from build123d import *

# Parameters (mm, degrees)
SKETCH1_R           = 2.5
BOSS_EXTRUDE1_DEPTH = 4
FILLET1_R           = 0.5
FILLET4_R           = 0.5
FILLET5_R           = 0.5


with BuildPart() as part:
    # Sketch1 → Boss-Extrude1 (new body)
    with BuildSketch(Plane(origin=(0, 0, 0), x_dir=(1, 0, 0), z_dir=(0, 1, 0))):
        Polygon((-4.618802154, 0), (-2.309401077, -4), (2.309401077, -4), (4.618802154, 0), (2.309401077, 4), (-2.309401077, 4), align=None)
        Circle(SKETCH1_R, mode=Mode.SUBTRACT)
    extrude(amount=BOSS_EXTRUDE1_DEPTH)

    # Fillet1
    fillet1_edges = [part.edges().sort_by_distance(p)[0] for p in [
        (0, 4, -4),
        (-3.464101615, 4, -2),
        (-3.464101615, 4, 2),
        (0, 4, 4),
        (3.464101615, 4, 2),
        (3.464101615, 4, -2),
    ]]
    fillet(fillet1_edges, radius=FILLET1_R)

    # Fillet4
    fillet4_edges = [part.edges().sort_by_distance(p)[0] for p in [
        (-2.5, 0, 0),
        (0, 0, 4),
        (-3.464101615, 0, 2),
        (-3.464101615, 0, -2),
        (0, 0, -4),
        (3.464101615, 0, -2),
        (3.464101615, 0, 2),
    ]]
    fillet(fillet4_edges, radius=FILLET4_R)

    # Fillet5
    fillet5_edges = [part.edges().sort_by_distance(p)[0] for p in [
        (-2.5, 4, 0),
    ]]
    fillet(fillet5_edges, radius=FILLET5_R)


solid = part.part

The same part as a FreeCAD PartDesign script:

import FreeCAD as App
import Part
import Sketcher

V = App.Vector
Q = App.Units.Quantity


def edges_at(feature, points):
    """Names of the edges that pass closest to the given points."""
    edges = feature.Shape.Edges
    near = lambda p: min(range(len(edges)), key=lambda i: edges[i].distToShape(Part.Vertex(*p))[0])
    return sorted({f"Edge{near(p) + 1}" for p in points})


def add_polygon(sketch, points):
    """Adds a closed chain of lines whose ends are joined by coincident constraints."""
    first, n = sketch.GeometryCount, len(points)
    for a, b in zip(points, points[1:] + points[:1]):
        sketch.addGeometry(Part.LineSegment(App.Vector(*a, 0), App.Vector(*b, 0)), False)
    for i in range(n):
        sketch.addConstraint(Sketcher.Constraint("Coincident", first + i, 2, first + (i + 1) % n, 1))

doc = App.newDocument("Part")
body = doc.addObject("PartDesign::Body", "Body")

# Sketch on XZ plane
sketch1 = doc.addObject("Sketcher::SketchObject", "Sketch")
body.addObject(sketch1)
sketch1.AttachmentSupport = (doc.XZ_Plane, [""])
sketch1.MapMode = "FlatFace"
add_polygon(sketch1, [(-4.618802, 0), (-2.309401, 4), (2.309401, 4), (4.618802, 0), (2.309401, -4), (-2.309401, -4)])  # lines 0-5
sketch1.addGeometry(Part.Circle(V(0, 0, 0), V(0, 0, 1), 2.5), False)  # 6
sketch1.addConstraint(Sketcher.Constraint("Horizontal", 1))
sketch1.addConstraint(Sketcher.Constraint("Horizontal", 4))
sketch1.addConstraint(Sketcher.Constraint("Coincident", 6, 3, -1, 1))
sketch1.addConstraint(Sketcher.Constraint("Symmetric", 0, 2, 3, 2, -1, 1))
sketch1.addConstraint(Sketcher.Constraint("Symmetric", 2, 2, 5, 2, -1, 1))
sketch1.addConstraint(Sketcher.Constraint("PointOnObject", 2, 2, -1))
sketch1.addConstraint(Sketcher.Constraint("Parallel", 2, 5))
sketch1.addConstraint(Sketcher.Constraint("Vertical", 1, 2, 3, 2))
sketch1.addConstraint(Sketcher.Constraint("Diameter", 6, 5.0))
sketch1.addConstraint(Sketcher.Constraint("Angle", 0, Q("60 deg")))
sketch1.addConstraint(Sketcher.Constraint("DistanceY", -1, 1, 0, 2, 4.0))
sketch1.addConstraint(Sketcher.Constraint("DistanceX", 0, 2, -1, 1, 2.309401))
pad1 = doc.addObject("PartDesign::Pad", "Pad")
body.addObject(pad1)
pad1.Profile = sketch1
pad1.Length = 4
pad1.Reversed = True
doc.recompute()

fillet = doc.addObject("PartDesign::Fillet", "Fillet")
body.addObject(fillet)
fillet.Base = (pad1, edges_at(pad1, [
    (0, 4, -4),
    (-3.464, 4, -2),
    (-3.464, 4, 2),
    (0, 4, 4),
    (3.464, 4, 2),
    (3.464, 4, -2),
]))
fillet.Radius = 0.5
doc.recompute()

fillet2 = doc.addObject("PartDesign::Fillet", "Fillet001")
body.addObject(fillet2)
fillet2.Base = (fillet, edges_at(fillet, [
    (-2.5, 0, 0),
    (0, 0, 4),
    (-3.464, 0, 2),
    (-3.464, 0, -2),
    (0, 0, -4),
    (3.464, 0, -2),
    (3.464, 0, 2),
]))
fillet2.Radius = 0.5
doc.recompute()

fillet3 = doc.addObject("PartDesign::Fillet", "Fillet002")
body.addObject(fillet3)
fillet3.Base = (fillet2, edges_at(fillet2, [(-2.5, 4, 0)]))
fillet3.Radius = 0.5

doc.recompute()
